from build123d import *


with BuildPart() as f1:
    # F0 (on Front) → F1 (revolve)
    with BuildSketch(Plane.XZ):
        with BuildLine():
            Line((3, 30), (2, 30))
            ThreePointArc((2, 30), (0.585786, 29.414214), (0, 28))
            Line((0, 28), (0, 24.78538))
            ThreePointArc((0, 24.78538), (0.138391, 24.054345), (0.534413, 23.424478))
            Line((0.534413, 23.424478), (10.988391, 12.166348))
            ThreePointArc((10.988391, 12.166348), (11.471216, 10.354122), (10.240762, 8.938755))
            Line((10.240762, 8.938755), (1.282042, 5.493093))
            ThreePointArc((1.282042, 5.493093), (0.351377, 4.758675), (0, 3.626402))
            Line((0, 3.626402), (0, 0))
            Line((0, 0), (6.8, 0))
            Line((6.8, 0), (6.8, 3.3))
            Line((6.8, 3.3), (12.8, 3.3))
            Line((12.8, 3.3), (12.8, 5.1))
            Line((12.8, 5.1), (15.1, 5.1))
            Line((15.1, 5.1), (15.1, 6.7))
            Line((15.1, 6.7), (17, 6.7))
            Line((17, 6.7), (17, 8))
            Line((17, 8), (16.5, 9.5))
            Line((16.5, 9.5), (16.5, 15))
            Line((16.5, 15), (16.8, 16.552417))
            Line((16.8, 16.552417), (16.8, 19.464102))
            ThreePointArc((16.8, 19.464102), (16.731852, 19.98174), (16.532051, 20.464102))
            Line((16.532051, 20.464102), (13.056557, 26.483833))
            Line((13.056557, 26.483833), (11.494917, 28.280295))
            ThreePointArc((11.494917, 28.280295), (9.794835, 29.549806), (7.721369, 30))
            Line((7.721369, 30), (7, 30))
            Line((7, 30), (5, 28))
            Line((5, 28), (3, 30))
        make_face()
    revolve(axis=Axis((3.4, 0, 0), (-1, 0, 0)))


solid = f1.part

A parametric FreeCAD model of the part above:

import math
import FreeCAD as App
import Part
import Sketcher
Q = App.Units.Quantity

doc = App.newDocument("Part")
params = doc.addObject("Spreadsheet::Sheet", "Params")
for row, (alias, value) in enumerate([
    ("sketch1_radius", "1.999999 mm"),
    ("sketch1_width", "1 mm"),
    ("sketch1_width2", "6 mm"),
    ("sketch1_width3", "6.8 mm"),
    ("sketch1_width4", "2.3 mm"),
    ("revolution_angle", "360 deg"),
], start=1):
    params.set(f"A{row}", alias)
    params.set(f"B{row}", "=" + value)
    params.setAlias(f"B{row}", alias)

body = doc.addObject("PartDesign::Body", "Body")

# Sketch on XZ plane
sketch1 = body.newObject("Sketcher::SketchObject", "Sketch")
sketch1.AttachmentSupport = (doc.getObject("XZ_Plane"), [""])
sketch1.MapMode = "FlatFace"
sketch1.addGeometry([
    Part.LineSegment(App.Vector(3, 30, 0), App.Vector(2, 30, 0)),  # 0
    Part.ArcOfCircle(Part.Circle(App.Vector(2, 28, 0), App.Vector(0, 0, 1), 2), math.radians(90), math.radians(180)),  # 1
    Part.LineSegment(App.Vector(0, 28, 0), App.Vector(0, 24.8, 0)),  # 2
    Part.ArcOfCircle(Part.Circle(App.Vector(2, 24.8, 0), App.Vector(0, 0, 1), 2), math.radians(180), math.radians(223)),  # 3
    Part.LineSegment(App.Vector(0.5, 23.4, 0), App.Vector(11, 12.2, 0)),  # 4
    Part.ArcOfCircle(Part.Circle(App.Vector(9.5, 10.8, 0), App.Vector(0, 0, 1), 2), math.radians(-69), math.radians(43)),  # 5
    Part.LineSegment(App.Vector(10.2, 8.9, 0), App.Vector(1.3, 5.5, 0)),  # 6
    Part.ArcOfCircle(Part.Circle(App.Vector(2, 3.6, 0), App.Vector(0, 0, 1), 2), math.radians(111), math.radians(180)),  # 7
    Part.LineSegment(App.Vector(0, 3.6, 0), App.Vector(0, 0, 0)),  # 8
    Part.LineSegment(App.Vector(0, 0, 0), App.Vector(6.8, 0, 0)),  # 9
    Part.LineSegment(App.Vector(6.8, 0, 0), App.Vector(6.8, 3.3, 0)),  # 10
    Part.LineSegment(App.Vector(6.8, 3.3, 0), App.Vector(12.8, 3.3, 0)),  # 11
    Part.LineSegment(App.Vector(12.8, 3.3, 0), App.Vector(12.8, 5.1, 0)),  # 12
    Part.LineSegment(App.Vector(12.8, 5.1, 0), App.Vector(15.1, 5.1, 0)),  # 13
    Part.LineSegment(App.Vector(15.1, 5.1, 0), App.Vector(15.1, 6.7, 0)),  # 14
    Part.LineSegment(App.Vector(15.1, 6.7, 0), App.Vector(17, 6.7, 0)),  # 15
    Part.LineSegment(App.Vector(17, 6.7, 0), App.Vector(17, 8, 0)),  # 16
    Part.LineSegment(App.Vector(17, 8, 0), App.Vector(16.5, 9.5, 0)),  # 17
    Part.LineSegment(App.Vector(16.5, 9.5, 0), App.Vector(16.5, 15, 0)),  # 18
    Part.LineSegment(App.Vector(16.5, 15, 0), App.Vector(16.8, 16.6, 0)),  # 19
    Part.LineSegment(App.Vector(16.8, 16.6, 0), App.Vector(16.8, 19.5, 0)),  # 20
    Part.ArcOfCircle(Part.Circle(App.Vector(14.8, 19.5, 0), App.Vector(0, 0, 1), 2), math.radians(0), math.radians(30)),  # 21
    Part.LineSegment(App.Vector(16.5, 20.5, 0), App.Vector(13.1, 26.5, 0)),  # 22
    Part.LineSegment(App.Vector(13.1, 26.5, 0), App.Vector(11.5, 28.3, 0)),  # 23
    Part.ArcOfCircle(Part.Circle(App.Vector(7.7, 25, 0), App.Vector(0, 0, 1), 5), math.radians(41), math.radians(90)),  # 24
    Part.LineSegment(App.Vector(7.7, 30, 0), App.Vector(7, 30, 0)),  # 25
    Part.LineSegment(App.Vector(7, 30, 0), App.Vector(5, 28, 0)),  # 26
    Part.LineSegment(App.Vector(5, 28, 0), App.Vector(3, 30, 0)),  # 27
], False)
sketch1.addConstraint([
    Sketcher.Constraint("Tangent", 0, 2, 1, 1),
    Sketcher.Constraint("Tangent", 1, 2, 2, 1),
    Sketcher.Constraint("Tangent", 2, 2, 3, 1),
    Sketcher.Constraint("Tangent", 3, 2, 4, 1),
    Sketcher.Constraint("Tangent", 4, 2, 5, 2),
    Sketcher.Constraint("Tangent", 5, 1, 6, 1),
    Sketcher.Constraint("Tangent", 6, 2, 7, 1),
    Sketcher.Constraint("Tangent", 7, 2, 8, 1),
    Sketcher.Constraint("Coincident", 8, 2, 9, 1),
    Sketcher.Constraint("Coincident", 9, 2, 10, 1),
    Sketcher.Constraint("Coincident", 10, 2, 11, 1),
    Sketcher.Constraint("Coincident", 11, 2, 12, 1),
    Sketcher.Constraint("Coincident", 12, 2, 13, 1),
    Sketcher.Constraint("Coincident", 13, 2, 14, 1),
    Sketcher.Constraint("Coincident", 14, 2, 15, 1),
    Sketcher.Constraint("Coincident", 15, 2, 16, 1),
    Sketcher.Constraint("Coincident", 16, 2, 17, 1),
    Sketcher.Constraint("Coincident", 17, 2, 18, 1),
    Sketcher.Constraint("Coincident", 18, 2, 19, 1),
    Sketcher.Constraint("Coincident", 19, 2, 20, 1),
    Sketcher.Constraint("Tangent", 20, 2, 21, 1),
    Sketcher.Constraint("Tangent", 21, 2, 22, 1),
    Sketcher.Constraint("Coincident", 22, 2, 23, 1),
    Sketcher.Constraint("Tangent", 23, 2, 24, 1),
    Sketcher.Constraint("Tangent", 24, 2, 25, 1),
    Sketcher.Constraint("Coincident", 25, 2, 26, 1),
    Sketcher.Constraint("Coincident", 26, 2, 27, 1),
    Sketcher.Constraint("Coincident", 27, 2, 0, 1),
    Sketcher.Constraint("Horizontal", 0),
    Sketcher.Constraint("Vertical", 2),
    Sketcher.Constraint("Vertical", 8),
    Sketcher.Constraint("Horizontal", 9),
    Sketcher.Constraint("Vertical", 10),
    Sketcher.Constraint("Horizontal", 11),
    Sketcher.Constraint("Vertical", 12),
    Sketcher.Constraint("Horizontal", 13),
    Sketcher.Constraint("Vertical", 14),
    Sketcher.Constraint("Horizontal", 15),
    Sketcher.Constraint("Vertical", 16),
    Sketcher.Constraint("Vertical", 18),
    Sketcher.Constraint("Vertical", 20),
    Sketcher.Constraint("Horizontal", 25),
    Sketcher.Constraint("Coincident", 8, 2, -1, 1),
    Sketcher.Constraint("Equal", 1, 3),
    Sketcher.Constraint("Equal", 3, 5),
    Sketcher.Constraint("Equal", 5, 7),
    Sketcher.Constraint("PointOnObject", 1, 2, -2),
    Sketcher.Constraint("Perpendicular", 26, 27),
    Sketcher.Constraint("Horizontal", 0, 2, 24, 2),
    Sketcher.Constraint("Horizontal", 1, 2, 26, 2),
    Sketcher.Constraint("Equal", 17, 19),
    Sketcher.Constraint("Equal", 26, 27),
    Sketcher.Constraint("Radius", 1, 1.999999),
    Sketcher.Constraint("DistanceX", 0, 2, 0, 1, 1.0),
    Sketcher.Constraint("DistanceX", 11, 1, 11, 2, 6.0),
    Sketcher.Constraint("Angle", 22, Q("120.000005 deg")),
    Sketcher.Constraint("Angle", 23, Q("130.999989 deg")),
    Sketcher.Constraint("DistanceX", 9, 1, 9, 2, 6.8),
    Sketcher.Constraint("DistanceX", 13, 1, 13, 2, 2.3),
    Sketcher.Constraint("DistanceX", 15, 1, 15, 2, 1.9),
    Sketcher.Constraint("DistanceY", 10, 1, 10, 2, 3.3),
    Sketcher.Constraint("DistanceY", 12, 1, 12, 2, 1.8),
    Sketcher.Constraint("DistanceY", 14, 1, 14, 2, 1.6),
    Sketcher.Constraint("DistanceY", 16, 1, 16, 2, 1.3),
    Sketcher.Constraint("DistanceY", 18, 1, 18, 2, 5.5),
    Sketcher.Constraint("DistanceY", -1, 1, 1, 3, 28.000001),
    Sketcher.Constraint("DistanceY", -1, 1, 18, 2, 15.0),
    Sketcher.Constraint("DistanceY", 20, 2, 21, 2, 1.0),
    Sketcher.Constraint("DistanceX", -1, 1, 17, 2, 16.5),
    Sketcher.Constraint("DistanceX", -1, 1, 19, 2, 16.8),
    Sketcher.Constraint("Radius", 24, 5.000004),
    Sketcher.Constraint("DistanceX", 25, 2, 25, 1, 0.721369),
    Sketcher.Constraint("DistanceY", 2, 2, 2, 1, 3.21462),
    Sketcher.Constraint("DistanceY", 7, 3, 1, 3, 24.373599),
    Sketcher.Constraint("DistanceX", 5, 3, 21, 3, 5.2772),
    Sketcher.Constraint("DistanceY", 7, 3, 21, 3, 15.837702),
    Sketcher.Constraint("DistanceY", 3, 2, 2, 2, 1.360902),
])
sketch1.setExpression("Constraints[52]", "Params.sketch1_radius")
sketch1.setExpression("Constraints[53]", "Params.sketch1_width")
sketch1.setExpression("Constraints[54]", "Params.sketch1_width2")
sketch1.setExpression("Constraints[57]", "Params.sketch1_width3")
sketch1.setExpression("Constraints[58]", "Params.sketch1_width4")
revolution = body.newObject("PartDesign::Revolution", "Revolution")
revolution.Profile = sketch1
revolution.ReferenceAxis = (sketch1, ["H_Axis"])
revolution.setExpression("Angle", "Params.revolution_angle")

doc.recompute()
